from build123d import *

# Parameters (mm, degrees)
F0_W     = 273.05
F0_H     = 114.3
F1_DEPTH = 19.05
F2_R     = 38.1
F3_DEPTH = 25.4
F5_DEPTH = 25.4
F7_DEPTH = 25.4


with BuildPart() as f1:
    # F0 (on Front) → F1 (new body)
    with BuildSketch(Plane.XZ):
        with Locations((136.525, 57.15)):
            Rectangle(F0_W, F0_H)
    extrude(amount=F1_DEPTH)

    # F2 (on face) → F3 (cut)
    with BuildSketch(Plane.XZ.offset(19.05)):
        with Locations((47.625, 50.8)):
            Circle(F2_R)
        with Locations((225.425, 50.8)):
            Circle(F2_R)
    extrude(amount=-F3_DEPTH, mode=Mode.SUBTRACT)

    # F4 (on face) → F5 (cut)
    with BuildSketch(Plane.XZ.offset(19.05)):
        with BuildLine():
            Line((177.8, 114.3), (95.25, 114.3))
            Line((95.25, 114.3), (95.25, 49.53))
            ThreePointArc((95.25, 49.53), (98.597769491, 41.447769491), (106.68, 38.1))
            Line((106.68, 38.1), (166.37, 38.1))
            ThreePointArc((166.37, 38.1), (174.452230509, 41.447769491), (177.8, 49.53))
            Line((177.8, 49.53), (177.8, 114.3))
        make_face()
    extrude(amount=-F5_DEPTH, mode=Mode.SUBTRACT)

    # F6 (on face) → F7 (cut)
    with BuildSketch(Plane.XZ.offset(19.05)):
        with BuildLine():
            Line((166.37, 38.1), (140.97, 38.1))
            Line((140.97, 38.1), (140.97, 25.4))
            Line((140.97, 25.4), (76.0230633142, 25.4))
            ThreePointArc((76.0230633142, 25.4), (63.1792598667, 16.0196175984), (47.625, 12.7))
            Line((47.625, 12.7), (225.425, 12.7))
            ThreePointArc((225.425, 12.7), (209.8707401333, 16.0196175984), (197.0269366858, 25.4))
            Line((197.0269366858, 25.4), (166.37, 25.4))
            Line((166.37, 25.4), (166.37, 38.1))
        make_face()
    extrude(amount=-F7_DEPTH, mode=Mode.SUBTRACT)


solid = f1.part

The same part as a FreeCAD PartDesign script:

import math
import FreeCAD as App
import Part
import Sketcher

V = App.Vector
Q = App.Units.Quantity

doc = App.newDocument("Part")
body = doc.addObject("PartDesign::Body", "Body")

# Sketch on XZ plane
sketch1 = doc.addObject("Sketcher::SketchObject", "Sketch")
body.addObject(sketch1)
sketch1.AttachmentSupport = (doc.XZ_Plane, [""])
sketch1.MapMode = "FlatFace"
sketch1.addGeometry([
    Part.LineSegment(V(0, 114.3, 0), V(0, 0, 0)),
    Part.LineSegment(V(0, 0, 0), V(273.05, 0, 0)),
    Part.LineSegment(V(273.05, 0, 0), V(273.05, 114.3, 0)),
    Part.LineSegment(V(273.05, 114.3, 0), V(0, 114.3, 0)),
], False)
sketch1.addConstraint([
    Sketcher.Constraint("Coincident", 0, 2, 1, 1),
    Sketcher.Constraint("Coincident", 1, 2, 2, 1),
    Sketcher.Constraint("Coincident", 2, 2, 3, 1),
    Sketcher.Constraint("Coincident", 3, 2, 0, 1),
    Sketcher.Constraint("Vertical", 0),
    Sketcher.Constraint("Horizontal", 1),
    Sketcher.Constraint("Vertical", 2),
    Sketcher.Constraint("Horizontal", 3),
    Sketcher.Constraint("Coincident", 0, 2, -1, 1),
    Sketcher.Constraint("DistanceY", 0, 2, 0, 1, Q("4.5 in")),
    Sketcher.Constraint("DistanceX", 1, 1, 1, 2, Q("10.75 in")),
])
pad1 = doc.addObject("PartDesign::Pad", "Pad")
body.addObject(pad1)
pad1.Profile = sketch1
pad1.Length = Q("0.75 in")

# Sketch on XZ plane
sketch2 = doc.addObject("Sketcher::SketchObject", "Sketch001")
body.addObject(sketch2)
sketch2.AttachmentSupport = (doc.XZ_Plane, [""])
sketch2.MapMode = "FlatFace"
sketch2.AttachmentOffset = App.Placement(V(0, 0, 0.75 * 25.4), App.Rotation())
sketch2.addGeometry([
    Part.Circle(V(47.625, 50.8, 0), V(0, 0, 1), 38.1),
    Part.Circle(V(225.425, 50.8, 0), V(0, 0, 1), 38.1),
], False)
sketch2.addConstraint([
    Sketcher.Constraint("Equal", 0, 1),
    Sketcher.Constraint("Horizontal", 0, 3, 1, 3),
    Sketcher.Constraint("Diameter", 0, Q("3 in")),
    Sketcher.Constraint("DistanceY", -1, 1, 0, 3, Q("2 in")),
    Sketcher.Constraint("DistanceX", 0, 3, 1, 3, Q("7 in")),
    Sketcher.Constraint("DistanceX", -1, 1, 0, 3, Q("1.875 in")),
])
pocket1 = doc.addObject("PartDesign::Pocket", "Pocket")
body.addObject(pocket1)
pocket1.Profile = sketch2
pocket1.Length = Q("1 in")

# Sketch on XZ plane
sketch3 = doc.addObject("Sketcher::SketchObject", "Sketch002")
body.addObject(sketch3)
sketch3.AttachmentSupport = (doc.XZ_Plane, [""])
sketch3.MapMode = "FlatFace"
sketch3.AttachmentOffset = App.Placement(V(0, 0, 0.75 * 25.4), App.Rotation())
sketch3.addGeometry([
    Part.LineSegment(V(177.8, 114.3, 0), V(95.25, 114.3, 0)),  # 0
    Part.LineSegment(V(95.25, 114.3, 0), V(95.25, 49.53, 0)),  # 1
    Part.ArcOfCircle(Part.Circle(V(106.68, 49.53, 0), V(0, 0, 1), 11.43), math.radians(180), math.radians(270)),  # 2
    Part.LineSegment(V(106.68, 38.1, 0), V(166.37, 38.1, 0)),  # 3
    Part.ArcOfCircle(Part.Circle(V(166.37, 49.53, 0), V(0, 0, 1), 11.43), math.radians(-90), math.radians(0)),  # 4
    Part.LineSegment(V(177.8, 49.53, 0), V(177.8, 114.3, 0)),  # 5
], False)
sketch3.addConstraint([
    Sketcher.Constraint("Coincident", 0, 2, 1, 1),
    Sketcher.Constraint("Tangent", 1, 2, 2, 1),
    Sketcher.Constraint("Tangent", 2, 2, 3, 1),
    Sketcher.Constraint("Tangent", 3, 2, 4, 1),
    Sketcher.Constraint("Tangent", 4, 2, 5, 1),
    Sketcher.Constraint("Coincident", 5, 2, 0, 1),
    Sketcher.Constraint("Horizontal", 0),
    Sketcher.Constraint("Vertical", 1),
    Sketcher.Constraint("Horizontal", 3),
    Sketcher.Constraint("Vertical", 5),
    Sketcher.Constraint("Equal", 2, 4),
    Sketcher.Constraint("Radius", 2, Q("0.45 in")),
    Sketcher.Constraint("DistanceX", -1, 1, 4, 2, Q("7 in")),
    Sketcher.Constraint("DistanceY", 2, 2, 0, 2, Q("3 in")),
    Sketcher.Constraint("DistanceX", 0, 2, 0, 1, Q("3.25 in")),
    Sketcher.Constraint("DistanceY", -1, 1, 0, 2, Q("4.5 in")),
])
pocket2 = doc.addObject("PartDesign::Pocket", "Pocket001")
body.addObject(pocket2)
pocket2.Profile = sketch3
pocket2.Length = Q("1 in")

# Sketch on XZ plane
sketch4 = doc.addObject("Sketcher::SketchObject", "Sketch003")
body.addObject(sketch4)
sketch4.AttachmentSupport = (doc.XZ_Plane, [""])
sketch4.MapMode = "FlatFace"
sketch4.AttachmentOffset = App.Placement(V(0, 0, 0.75 * 25.4), App.Rotation())
sketch4.addGeometry([
    Part.LineSegment(V(166.37, 38.1, 0), V(140.97, 38.1, 0)),  # 0
    Part.LineSegment(V(140.97, 38.1, 0), V(140.97, 25.4, 0)),  # 1
    Part.LineSegment(V(140.97, 25.4, 0), V(76.023063, 25.4, 0)),  # 2
    Part.ArcOfCircle(Part.Circle(V(47.625, 50.8, 0), V(0, 0, 1), 38.1), math.radians(-90), math.radians(-41.810315)),  # 3
    Part.LineSegment(V(47.625, 12.7, 0), V(225.425, 12.7, 0)),  # 4
    Part.ArcOfCircle(Part.Circle(V(225.425, 50.8, 0), V(0, 0, 1), 38.1), math.radians(-138.189685), math.radians(-90)),  # 5
    Part.LineSegment(V(197.026937, 25.4, 0), V(166.37, 25.4, 0)),  # 6
    Part.LineSegment(V(166.37, 25.4, 0), V(166.37, 38.1, 0)),  # 7
], False)
sketch4.addConstraint([
    Sketcher.Constraint("Coincident", 0, 2, 1, 1),
    Sketcher.Constraint("Coincident", 1, 2, 2, 1),
    Sketcher.Constraint("Coincident", 2, 2, 3, 2),
    Sketcher.Constraint("Tangent", 3, 1, 4, 1),
    Sketcher.Constraint("Tangent", 4, 2, 5, 2),
    Sketcher.Constraint("Coincident", 5, 1, 6, 1),
    Sketcher.Constraint("Coincident", 6, 2, 7, 1),
    Sketcher.Constraint("Coincident", 7, 2, 0, 1),
    Sketcher.Constraint("Horizontal", 0),
    Sketcher.Constraint("Vertical", 1),
    Sketcher.Constraint("Horizontal", 2),
    Sketcher.Constraint("Horizontal", 4),
    Sketcher.Constraint("Horizontal", 6),
    Sketcher.Constraint("Vertical", 7),
    Sketcher.Constraint("Equal", 3, 5),
    Sketcher.Constraint("Horizontal", 2, 2, 5, 1),
    Sketcher.Constraint("Radius", 3, Q("1.5 in")),
    Sketcher.Constraint("DistanceX", 0, 2, 0, 1, Q("1 in")),
    Sketcher.Constraint("DistanceX", 4, 1, 4, 2, Q("7 in")),
    Sketcher.Constraint("DistanceY", 1, 2, 1, 1, Q("0.5 in")),
    Sketcher.Constraint("DistanceY", -1, 1, 3, 3, Q("2 in")),
    Sketcher.Constraint("DistanceY", -1, 1, 1, 2, Q("1 in")),
    Sketcher.Constraint("DistanceX", -1, 1, 0, 2, Q("5.55 in")),
    Sketcher.Constraint("DistanceX", -1, 1, 3, 3, Q("1.875 in")),
])
pocket3 = doc.addObject("PartDesign::Pocket", "Pocket002")
body.addObject(pocket3)
pocket3.Profile = sketch4
pocket3.Length = Q("1 in")

doc.recompute()
